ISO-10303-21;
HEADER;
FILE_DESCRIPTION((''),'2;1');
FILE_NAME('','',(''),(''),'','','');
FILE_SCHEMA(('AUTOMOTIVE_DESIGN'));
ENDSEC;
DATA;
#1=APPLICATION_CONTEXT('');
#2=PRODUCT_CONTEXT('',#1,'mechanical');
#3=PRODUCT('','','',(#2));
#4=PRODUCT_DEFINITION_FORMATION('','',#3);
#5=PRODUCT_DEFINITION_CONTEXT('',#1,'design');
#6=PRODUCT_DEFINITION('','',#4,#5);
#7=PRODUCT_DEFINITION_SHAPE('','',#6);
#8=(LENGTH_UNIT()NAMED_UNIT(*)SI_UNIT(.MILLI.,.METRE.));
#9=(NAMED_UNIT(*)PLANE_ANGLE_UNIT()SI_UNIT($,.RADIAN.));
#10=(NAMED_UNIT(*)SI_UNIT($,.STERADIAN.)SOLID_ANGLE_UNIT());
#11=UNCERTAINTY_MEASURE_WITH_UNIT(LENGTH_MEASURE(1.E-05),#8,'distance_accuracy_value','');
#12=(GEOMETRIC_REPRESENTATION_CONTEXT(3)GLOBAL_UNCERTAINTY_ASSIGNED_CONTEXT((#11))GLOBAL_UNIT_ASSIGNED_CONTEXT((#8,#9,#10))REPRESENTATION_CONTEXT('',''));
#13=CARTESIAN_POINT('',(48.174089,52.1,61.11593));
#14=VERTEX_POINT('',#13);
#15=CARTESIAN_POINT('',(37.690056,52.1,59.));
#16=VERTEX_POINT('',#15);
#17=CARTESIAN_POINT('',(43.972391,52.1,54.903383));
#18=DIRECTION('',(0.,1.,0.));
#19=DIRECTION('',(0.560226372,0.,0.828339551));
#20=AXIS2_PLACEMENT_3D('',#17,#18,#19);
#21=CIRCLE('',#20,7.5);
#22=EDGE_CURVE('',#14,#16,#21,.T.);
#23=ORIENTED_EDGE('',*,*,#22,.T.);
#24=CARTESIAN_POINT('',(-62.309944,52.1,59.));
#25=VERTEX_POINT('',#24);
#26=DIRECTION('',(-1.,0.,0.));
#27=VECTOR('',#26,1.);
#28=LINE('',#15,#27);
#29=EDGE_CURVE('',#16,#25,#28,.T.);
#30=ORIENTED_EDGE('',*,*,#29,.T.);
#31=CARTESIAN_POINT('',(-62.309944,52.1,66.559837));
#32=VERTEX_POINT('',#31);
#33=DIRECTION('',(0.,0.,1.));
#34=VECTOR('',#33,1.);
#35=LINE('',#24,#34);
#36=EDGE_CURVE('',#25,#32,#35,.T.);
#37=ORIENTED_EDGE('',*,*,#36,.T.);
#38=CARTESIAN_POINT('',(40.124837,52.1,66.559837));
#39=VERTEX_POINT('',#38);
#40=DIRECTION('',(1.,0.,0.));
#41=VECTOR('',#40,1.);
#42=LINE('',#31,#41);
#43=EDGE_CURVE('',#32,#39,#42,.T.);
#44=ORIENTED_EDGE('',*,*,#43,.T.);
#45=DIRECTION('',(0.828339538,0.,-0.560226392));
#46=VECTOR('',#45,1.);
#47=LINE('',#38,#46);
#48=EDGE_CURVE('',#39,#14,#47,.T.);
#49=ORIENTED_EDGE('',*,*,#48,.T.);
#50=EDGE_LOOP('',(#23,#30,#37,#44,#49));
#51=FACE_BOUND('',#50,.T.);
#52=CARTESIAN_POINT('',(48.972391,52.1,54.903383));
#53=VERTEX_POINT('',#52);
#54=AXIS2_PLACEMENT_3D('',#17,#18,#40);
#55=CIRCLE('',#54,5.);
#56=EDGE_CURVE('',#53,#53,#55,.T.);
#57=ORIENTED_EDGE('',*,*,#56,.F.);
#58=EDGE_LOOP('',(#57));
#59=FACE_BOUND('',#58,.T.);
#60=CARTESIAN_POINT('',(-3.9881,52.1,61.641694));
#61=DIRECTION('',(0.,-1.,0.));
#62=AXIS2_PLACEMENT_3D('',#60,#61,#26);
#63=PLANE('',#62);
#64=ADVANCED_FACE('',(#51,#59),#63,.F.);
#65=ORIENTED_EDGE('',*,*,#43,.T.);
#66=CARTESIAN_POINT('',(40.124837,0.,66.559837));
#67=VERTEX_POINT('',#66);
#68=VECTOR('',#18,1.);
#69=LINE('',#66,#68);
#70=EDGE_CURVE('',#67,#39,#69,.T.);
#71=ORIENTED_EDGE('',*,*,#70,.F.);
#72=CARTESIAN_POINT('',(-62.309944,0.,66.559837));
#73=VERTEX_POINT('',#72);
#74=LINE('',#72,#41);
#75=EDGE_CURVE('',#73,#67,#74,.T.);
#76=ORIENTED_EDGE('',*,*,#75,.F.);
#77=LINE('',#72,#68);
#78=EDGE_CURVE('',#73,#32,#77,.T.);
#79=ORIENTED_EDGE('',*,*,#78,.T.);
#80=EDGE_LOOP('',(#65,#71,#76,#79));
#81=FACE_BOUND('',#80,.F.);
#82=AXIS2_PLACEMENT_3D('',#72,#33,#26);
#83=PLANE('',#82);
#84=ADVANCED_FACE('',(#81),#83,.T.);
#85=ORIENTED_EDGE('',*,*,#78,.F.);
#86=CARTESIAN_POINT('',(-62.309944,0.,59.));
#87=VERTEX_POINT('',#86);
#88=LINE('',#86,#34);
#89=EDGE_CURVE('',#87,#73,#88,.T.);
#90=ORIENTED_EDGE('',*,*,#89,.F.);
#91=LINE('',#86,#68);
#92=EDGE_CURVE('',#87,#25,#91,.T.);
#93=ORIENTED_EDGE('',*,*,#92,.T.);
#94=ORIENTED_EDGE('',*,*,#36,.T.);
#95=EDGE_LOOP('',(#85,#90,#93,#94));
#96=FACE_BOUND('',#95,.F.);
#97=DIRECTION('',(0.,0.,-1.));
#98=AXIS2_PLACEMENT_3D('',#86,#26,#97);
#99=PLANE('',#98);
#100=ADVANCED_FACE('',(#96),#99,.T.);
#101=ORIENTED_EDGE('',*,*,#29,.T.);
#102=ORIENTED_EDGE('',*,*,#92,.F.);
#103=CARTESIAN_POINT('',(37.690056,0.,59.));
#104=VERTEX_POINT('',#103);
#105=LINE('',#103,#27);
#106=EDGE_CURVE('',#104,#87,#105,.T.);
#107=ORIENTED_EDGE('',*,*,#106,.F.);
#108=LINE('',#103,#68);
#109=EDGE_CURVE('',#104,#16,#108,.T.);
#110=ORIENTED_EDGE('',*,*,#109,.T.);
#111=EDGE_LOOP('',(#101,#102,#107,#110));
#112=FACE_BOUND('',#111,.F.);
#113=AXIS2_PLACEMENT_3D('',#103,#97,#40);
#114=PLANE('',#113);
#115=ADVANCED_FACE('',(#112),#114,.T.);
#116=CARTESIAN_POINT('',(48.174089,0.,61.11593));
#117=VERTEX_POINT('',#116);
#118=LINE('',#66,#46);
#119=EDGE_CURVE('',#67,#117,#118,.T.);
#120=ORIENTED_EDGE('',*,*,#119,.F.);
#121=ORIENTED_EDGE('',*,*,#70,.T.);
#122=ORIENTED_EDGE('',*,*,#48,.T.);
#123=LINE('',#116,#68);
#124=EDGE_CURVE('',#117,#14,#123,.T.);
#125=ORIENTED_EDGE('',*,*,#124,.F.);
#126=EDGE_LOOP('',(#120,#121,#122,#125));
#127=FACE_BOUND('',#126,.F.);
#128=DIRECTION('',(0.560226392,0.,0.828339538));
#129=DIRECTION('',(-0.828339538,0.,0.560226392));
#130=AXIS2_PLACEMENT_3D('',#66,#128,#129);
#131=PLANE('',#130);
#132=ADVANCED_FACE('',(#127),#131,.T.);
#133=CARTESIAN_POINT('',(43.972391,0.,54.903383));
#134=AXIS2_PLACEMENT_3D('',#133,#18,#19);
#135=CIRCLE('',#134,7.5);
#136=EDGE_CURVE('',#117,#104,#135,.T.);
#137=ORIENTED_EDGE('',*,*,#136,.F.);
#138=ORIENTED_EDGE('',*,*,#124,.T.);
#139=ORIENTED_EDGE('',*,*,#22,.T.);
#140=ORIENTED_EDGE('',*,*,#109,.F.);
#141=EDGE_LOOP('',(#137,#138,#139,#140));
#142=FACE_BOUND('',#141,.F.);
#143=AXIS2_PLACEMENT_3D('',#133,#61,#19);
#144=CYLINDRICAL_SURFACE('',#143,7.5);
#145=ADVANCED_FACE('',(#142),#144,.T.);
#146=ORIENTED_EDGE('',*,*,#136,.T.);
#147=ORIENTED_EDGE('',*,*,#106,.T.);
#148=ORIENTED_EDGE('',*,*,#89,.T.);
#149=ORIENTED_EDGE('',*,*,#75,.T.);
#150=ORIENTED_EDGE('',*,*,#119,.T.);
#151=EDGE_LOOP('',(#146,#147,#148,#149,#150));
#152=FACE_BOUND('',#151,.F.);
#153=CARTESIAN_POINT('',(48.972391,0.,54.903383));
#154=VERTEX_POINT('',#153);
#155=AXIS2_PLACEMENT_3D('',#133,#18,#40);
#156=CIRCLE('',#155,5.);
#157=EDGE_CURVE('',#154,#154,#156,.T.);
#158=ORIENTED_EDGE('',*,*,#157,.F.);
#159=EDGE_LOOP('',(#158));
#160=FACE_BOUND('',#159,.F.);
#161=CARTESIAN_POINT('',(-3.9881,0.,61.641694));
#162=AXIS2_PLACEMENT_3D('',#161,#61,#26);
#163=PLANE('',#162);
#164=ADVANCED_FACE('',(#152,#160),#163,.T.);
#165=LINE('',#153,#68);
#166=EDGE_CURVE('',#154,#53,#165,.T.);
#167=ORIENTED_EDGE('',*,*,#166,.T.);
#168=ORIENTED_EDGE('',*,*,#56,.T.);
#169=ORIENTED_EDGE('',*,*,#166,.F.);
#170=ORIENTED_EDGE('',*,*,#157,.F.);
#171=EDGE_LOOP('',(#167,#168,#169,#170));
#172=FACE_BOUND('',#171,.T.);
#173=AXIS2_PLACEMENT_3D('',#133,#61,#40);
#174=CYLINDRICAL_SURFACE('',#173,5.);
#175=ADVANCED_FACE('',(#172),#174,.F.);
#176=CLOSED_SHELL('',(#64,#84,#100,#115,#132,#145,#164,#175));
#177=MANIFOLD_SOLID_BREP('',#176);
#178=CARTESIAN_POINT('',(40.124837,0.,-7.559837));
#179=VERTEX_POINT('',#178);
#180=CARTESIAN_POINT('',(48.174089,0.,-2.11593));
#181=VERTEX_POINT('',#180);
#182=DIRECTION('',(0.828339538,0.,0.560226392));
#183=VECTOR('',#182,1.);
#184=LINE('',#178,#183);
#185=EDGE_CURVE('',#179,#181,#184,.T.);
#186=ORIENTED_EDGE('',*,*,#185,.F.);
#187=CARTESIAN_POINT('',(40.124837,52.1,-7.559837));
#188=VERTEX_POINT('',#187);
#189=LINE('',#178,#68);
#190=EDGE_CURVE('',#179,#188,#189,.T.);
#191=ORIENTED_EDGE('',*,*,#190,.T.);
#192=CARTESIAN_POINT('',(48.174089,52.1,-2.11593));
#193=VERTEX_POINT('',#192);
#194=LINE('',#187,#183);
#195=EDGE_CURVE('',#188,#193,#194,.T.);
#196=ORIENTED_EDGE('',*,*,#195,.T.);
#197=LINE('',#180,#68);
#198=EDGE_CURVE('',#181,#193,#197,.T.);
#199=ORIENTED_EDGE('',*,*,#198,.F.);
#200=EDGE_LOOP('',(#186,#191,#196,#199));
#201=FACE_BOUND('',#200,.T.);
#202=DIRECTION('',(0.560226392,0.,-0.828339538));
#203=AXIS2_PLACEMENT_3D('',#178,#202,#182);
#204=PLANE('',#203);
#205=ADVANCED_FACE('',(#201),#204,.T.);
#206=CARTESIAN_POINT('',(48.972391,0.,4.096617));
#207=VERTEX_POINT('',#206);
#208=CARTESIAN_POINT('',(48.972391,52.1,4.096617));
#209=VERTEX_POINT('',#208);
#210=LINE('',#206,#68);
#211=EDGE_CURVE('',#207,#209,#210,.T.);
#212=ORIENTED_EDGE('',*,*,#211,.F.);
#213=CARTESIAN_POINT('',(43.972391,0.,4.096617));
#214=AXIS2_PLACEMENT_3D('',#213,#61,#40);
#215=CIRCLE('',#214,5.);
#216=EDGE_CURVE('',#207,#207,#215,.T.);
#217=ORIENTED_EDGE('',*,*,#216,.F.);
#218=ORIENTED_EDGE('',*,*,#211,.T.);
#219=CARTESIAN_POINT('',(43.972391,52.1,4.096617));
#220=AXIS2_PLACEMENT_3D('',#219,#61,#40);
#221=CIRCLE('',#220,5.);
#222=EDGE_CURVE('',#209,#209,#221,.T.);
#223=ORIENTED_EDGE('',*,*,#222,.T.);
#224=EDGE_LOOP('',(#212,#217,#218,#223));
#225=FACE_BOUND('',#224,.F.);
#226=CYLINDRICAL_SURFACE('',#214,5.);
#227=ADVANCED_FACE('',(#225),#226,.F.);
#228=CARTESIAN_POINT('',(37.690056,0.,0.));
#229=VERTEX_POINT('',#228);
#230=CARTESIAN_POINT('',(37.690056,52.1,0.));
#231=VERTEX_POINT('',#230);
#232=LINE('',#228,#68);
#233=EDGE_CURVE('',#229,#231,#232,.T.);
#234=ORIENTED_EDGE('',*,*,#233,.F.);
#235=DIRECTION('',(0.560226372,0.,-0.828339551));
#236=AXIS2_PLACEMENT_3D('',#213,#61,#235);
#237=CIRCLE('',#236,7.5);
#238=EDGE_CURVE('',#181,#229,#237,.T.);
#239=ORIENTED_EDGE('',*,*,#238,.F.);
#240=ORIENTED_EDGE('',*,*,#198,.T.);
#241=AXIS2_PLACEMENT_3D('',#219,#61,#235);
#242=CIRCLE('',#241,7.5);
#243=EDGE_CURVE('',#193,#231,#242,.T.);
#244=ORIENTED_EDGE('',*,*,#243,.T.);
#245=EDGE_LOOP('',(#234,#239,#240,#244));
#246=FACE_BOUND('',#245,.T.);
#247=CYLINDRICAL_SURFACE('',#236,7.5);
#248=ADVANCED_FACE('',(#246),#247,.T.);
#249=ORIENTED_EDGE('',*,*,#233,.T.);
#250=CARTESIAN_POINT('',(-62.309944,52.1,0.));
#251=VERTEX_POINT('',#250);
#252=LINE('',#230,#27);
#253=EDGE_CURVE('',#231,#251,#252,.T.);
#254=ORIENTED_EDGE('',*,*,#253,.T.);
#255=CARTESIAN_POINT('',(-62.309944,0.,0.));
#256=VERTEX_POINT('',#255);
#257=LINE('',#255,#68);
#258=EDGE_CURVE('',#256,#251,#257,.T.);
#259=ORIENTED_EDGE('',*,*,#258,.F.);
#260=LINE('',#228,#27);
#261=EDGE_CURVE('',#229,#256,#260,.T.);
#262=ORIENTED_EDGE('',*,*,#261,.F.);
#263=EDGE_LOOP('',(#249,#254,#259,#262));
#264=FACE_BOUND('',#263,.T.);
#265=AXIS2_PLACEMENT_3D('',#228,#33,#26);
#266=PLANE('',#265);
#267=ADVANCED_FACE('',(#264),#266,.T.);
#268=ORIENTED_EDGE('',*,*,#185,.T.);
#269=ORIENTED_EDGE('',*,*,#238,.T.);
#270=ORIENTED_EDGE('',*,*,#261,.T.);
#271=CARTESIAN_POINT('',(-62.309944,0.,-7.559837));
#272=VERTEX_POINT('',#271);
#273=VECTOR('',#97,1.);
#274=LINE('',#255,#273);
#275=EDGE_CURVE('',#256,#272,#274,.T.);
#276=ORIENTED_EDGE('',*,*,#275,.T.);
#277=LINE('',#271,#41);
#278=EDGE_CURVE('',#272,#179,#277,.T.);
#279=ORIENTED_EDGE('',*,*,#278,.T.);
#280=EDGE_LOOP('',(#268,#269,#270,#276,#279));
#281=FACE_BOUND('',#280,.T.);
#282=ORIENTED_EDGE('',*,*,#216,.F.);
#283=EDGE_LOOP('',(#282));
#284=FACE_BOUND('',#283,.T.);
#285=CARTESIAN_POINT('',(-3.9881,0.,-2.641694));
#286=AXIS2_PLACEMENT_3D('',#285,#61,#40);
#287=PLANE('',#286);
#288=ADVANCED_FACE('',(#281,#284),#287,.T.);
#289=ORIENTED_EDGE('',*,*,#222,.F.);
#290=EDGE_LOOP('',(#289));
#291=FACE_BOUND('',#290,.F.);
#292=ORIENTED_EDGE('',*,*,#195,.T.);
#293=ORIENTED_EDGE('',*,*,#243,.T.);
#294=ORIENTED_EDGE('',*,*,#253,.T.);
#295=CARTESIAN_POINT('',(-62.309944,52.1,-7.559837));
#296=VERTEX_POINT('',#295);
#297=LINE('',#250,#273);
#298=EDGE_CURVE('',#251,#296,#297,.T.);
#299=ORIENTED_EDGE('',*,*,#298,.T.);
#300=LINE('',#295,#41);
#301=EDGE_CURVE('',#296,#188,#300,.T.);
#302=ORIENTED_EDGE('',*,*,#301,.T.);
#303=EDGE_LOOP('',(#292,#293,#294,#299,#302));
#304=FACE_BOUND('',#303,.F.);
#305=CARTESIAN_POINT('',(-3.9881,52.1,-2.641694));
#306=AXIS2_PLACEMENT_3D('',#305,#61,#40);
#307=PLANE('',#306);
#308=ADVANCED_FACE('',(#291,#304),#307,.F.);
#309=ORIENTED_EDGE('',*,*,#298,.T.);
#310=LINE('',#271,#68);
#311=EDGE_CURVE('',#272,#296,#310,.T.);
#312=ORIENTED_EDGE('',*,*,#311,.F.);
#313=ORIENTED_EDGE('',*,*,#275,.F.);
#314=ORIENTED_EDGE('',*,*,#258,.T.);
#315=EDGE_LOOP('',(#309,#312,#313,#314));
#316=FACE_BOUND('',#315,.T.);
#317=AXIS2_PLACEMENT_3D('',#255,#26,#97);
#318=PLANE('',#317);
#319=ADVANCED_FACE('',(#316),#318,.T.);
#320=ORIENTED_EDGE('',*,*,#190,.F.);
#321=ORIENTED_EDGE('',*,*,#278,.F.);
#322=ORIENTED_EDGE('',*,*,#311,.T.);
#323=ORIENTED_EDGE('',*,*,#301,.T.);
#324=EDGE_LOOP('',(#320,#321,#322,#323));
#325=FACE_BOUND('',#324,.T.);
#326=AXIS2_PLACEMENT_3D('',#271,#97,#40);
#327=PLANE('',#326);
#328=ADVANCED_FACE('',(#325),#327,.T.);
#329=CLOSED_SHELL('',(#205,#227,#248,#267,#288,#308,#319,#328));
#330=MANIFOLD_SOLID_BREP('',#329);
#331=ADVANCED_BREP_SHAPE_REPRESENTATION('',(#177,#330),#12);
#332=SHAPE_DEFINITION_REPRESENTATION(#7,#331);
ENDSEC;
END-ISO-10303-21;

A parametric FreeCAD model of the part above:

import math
import FreeCAD as App
import Part
import Sketcher
Q = App.Units.Quantity

doc = App.newDocument("Part")
body = doc.addObject("PartDesign::Body", "Body")

# Sketch on XZ plane
sketch1 = body.newObject("Sketcher::SketchObject", "Sketch")
sketch1.AttachmentSupport = (doc.getObject("XZ_Plane"), [""])
sketch1.MapMode = "FlatFace"
sketch1.addGeometry(Part.LineSegment(App.Vector(38, 0, 0), App.Vector(-62, 0, 0)), False)
sketch1.addGeometry(Part.LineSegment(App.Vector(-62, 0, 0), App.Vector(-62, -8, 0)), False)
sketch1.addGeometry(Part.LineSegment(App.Vector(-62, -8, 0), App.Vector(40, -8, 0)), False)
sketch1.addGeometry(Part.LineSegment(App.Vector(40, -8, 0), App.Vector(48, -2, 0)), False)
sketch1.addGeometry(Part.ArcOfCircle(Part.Circle(App.Vector(44, 4, 0), App.Vector(0, 0, 1), 8), math.radians(-56), math.radians(213)), False)
sketch1.addGeometry(Part.Circle(App.Vector(44, 4, 0), App.Vector(0, 0, 1), 5), False)
sketch1.addConstraint(Sketcher.Constraint("Coincident", 0, 2, 1, 1))
sketch1.addConstraint(Sketcher.Constraint("Coincident", 1, 2, 2, 1))
sketch1.addConstraint(Sketcher.Constraint("Coincident", 2, 2, 3, 1))
sketch1.addConstraint(Sketcher.Constraint("Tangent", 3, 2, 4, 1))
sketch1.addConstraint(Sketcher.Constraint("Coincident", 4, 2, 0, 1))
sketch1.addConstraint(Sketcher.Constraint("Horizontal", 0))
sketch1.addConstraint(Sketcher.Constraint("Vertical", 1))
sketch1.addConstraint(Sketcher.Constraint("Horizontal", 2))
sketch1.addConstraint(Sketcher.Constraint("Coincident", 5, 3, 4, 3))
sketch1.addConstraint(Sketcher.Constraint("PointOnObject", 0, 2, -1))
sketch1.addConstraint(Sketcher.Constraint("Diameter", 5, Q("10 mm")))
sketch1.addConstraint(Sketcher.Constraint("Radius", 4, Q("7.5 mm")))
sketch1.addConstraint(Sketcher.Constraint("DistanceX", 0, 2, 0, 1, Q("100 mm")))
sketch1.addConstraint(Sketcher.Constraint("DistanceX", 2, 1, 2, 2, Q("102.434781 mm")))
sketch1.addConstraint(Sketcher.Constraint("DistanceX", 5, 3, 3, 2, Q("4.201698 mm")))
sketch1.addConstraint(Sketcher.Constraint("DistanceY", 1, 2, 1, 1, Q("7.559837 mm")))
sketch1.addConstraint(Sketcher.Constraint("DistanceX", -1, 1, 4, 3, Q("43.972391 mm")))
pad1 = body.newObject("PartDesign::Pad", "Pad")
pad1.Profile = sketch1
pad1.Length = 52.1
pad1.Reversed = True
body2 = doc.addObject("PartDesign::Body", "Body001")
doc.recompute()

mirroring = doc.addObject("Part::Mirroring", "Mirroring")
mirroring.Source = body
mirroring.Base = App.Vector(0, 0, 29.5)
mirroring.Normal = App.Vector(0, 0, 1)
body2.BaseFeature = mirroring
doc.recompute()
mirroring.Visibility = False

doc.recompute()
